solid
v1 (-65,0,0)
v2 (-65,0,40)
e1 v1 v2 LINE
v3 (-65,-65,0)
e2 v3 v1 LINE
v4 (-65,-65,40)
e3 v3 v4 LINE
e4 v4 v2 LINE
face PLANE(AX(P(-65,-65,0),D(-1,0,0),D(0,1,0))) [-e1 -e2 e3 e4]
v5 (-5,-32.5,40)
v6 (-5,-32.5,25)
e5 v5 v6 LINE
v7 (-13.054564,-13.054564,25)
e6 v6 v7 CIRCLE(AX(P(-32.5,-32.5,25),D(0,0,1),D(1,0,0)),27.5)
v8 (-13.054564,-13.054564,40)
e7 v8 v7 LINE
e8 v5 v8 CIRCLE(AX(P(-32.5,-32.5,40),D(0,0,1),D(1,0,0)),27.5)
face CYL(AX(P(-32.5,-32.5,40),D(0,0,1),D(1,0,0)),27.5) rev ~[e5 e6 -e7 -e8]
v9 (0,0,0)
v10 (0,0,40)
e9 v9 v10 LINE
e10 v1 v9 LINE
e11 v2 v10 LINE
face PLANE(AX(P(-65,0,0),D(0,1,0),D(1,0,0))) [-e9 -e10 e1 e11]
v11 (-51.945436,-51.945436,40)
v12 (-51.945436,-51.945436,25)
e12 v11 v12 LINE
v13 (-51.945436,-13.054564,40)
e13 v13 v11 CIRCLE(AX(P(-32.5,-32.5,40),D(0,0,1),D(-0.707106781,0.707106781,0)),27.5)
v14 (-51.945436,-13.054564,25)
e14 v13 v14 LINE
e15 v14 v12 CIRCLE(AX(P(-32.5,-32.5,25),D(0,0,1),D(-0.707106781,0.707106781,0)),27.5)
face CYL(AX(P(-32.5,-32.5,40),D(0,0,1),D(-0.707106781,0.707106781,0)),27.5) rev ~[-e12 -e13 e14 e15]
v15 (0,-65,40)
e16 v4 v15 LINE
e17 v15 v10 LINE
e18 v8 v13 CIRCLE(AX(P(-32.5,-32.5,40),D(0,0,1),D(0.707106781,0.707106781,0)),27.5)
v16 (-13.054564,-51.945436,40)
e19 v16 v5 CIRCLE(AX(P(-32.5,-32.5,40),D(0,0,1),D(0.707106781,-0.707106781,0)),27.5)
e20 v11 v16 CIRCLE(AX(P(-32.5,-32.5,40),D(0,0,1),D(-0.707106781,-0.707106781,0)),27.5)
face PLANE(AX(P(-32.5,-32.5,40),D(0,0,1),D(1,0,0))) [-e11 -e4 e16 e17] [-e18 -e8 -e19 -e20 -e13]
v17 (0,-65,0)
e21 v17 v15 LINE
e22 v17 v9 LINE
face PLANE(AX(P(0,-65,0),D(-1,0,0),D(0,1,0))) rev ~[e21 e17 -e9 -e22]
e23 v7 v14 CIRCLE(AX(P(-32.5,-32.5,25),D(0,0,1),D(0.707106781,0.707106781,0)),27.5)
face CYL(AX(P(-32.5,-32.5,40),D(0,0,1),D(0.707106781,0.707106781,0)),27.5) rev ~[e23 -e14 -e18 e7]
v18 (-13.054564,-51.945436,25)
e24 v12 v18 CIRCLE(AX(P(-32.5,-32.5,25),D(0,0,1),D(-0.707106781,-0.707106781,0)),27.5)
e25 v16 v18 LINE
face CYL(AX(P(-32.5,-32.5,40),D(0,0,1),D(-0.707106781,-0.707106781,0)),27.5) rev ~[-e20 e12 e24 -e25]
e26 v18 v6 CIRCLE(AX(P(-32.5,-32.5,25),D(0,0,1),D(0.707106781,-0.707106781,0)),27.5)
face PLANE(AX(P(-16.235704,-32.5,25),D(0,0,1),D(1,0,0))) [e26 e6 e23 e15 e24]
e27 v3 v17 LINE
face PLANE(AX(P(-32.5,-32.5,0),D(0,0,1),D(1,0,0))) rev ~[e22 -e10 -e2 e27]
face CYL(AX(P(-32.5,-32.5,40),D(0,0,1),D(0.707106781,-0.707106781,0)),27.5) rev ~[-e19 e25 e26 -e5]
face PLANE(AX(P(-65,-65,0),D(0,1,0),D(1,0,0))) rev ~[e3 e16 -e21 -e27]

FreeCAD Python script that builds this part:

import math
import FreeCAD as App
import Part
import Sketcher
Q = App.Units.Quantity


def add_polygon(sketch, points):
    """Adds a closed chain of lines whose ends are joined by coincident constraints."""
    first, n = sketch.GeometryCount, len(points)
    for a, b in zip(points, points[1:] + points[:1]):
        sketch.addGeometry(Part.LineSegment(App.Vector(*a, 0), App.Vector(*b, 0)), False)
    for i in range(n):
        sketch.addConstraint(Sketcher.Constraint("Coincident", first + i, 2, first + (i + 1) % n, 1))

doc = App.newDocument("Part")
body = doc.addObject("PartDesign::Body", "Body")

sketch1 = body.newObject("Sketcher::SketchObject", "Sketch")
sketch1.AttachmentSupport = (doc.getObject("XY_Plane"), [""])
sketch1.MapMode = "FlatFace"
add_polygon(sketch1, [(-65, 0), (-65, -65), (0, -65), (0, 0)])
sketch1.addConstraint(Sketcher.Constraint("Vertical", 0))
sketch1.addConstraint(Sketcher.Constraint("Horizontal", 1))
sketch1.addConstraint(Sketcher.Constraint("Vertical", 2))
sketch1.addConstraint(Sketcher.Constraint("Horizontal", 3))
sketch1.addConstraint(Sketcher.Constraint("Coincident", 2, 2, -1, 1))
sketch1.addConstraint(Sketcher.Constraint("Equal", 3, 0))
sketch1.addConstraint(Sketcher.Constraint("DistanceX", 1, 1, 1, 2, Q("65 mm")))
pad1 = body.newObject("PartDesign::Pad", "Pad")
pad1.Profile = sketch1
pad1.Length = 40

sketch2 = body.newObject("Sketcher::SketchObject", "Sketch001")
sketch2.AttachmentSupport = (doc.getObject("XY_Plane"), [""])
sketch2.MapMode = "FlatFace"
sketch2.AttachmentOffset = App.Placement(App.Vector(0, 0, 40), App.Rotation())
sketch2.addGeometry(Part.ArcOfCircle(Part.Circle(App.Vector(-32.5, -32.5, 0), App.Vector(0, 0, 1), 27.5), math.radians(-45), math.radians(0)), False)
sketch2.addGeometry(Part.ArcOfCircle(Part.Circle(App.Vector(-32.5, -32.5, 0), App.Vector(0, 0, 1), 27.5), math.radians(0), math.radians(45)), False)
sketch2.addGeometry(Part.ArcOfCircle(Part.Circle(App.Vector(-32.5, -32.5, 0), App.Vector(0, 0, 1), 27.5), math.radians(45), math.radians(135)), False)
sketch2.addGeometry(Part.ArcOfCircle(Part.Circle(App.Vector(-32.5, -32.5, 0), App.Vector(0, 0, 1), 27.5), math.radians(135), math.radians(225)), False)
sketch2.addGeometry(Part.ArcOfCircle(Part.Circle(App.Vector(-32.5, -32.5, 0), App.Vector(0, 0, 1), 27.5), math.radians(-135), math.radians(-45)), False)
sketch2.addConstraint(Sketcher.Constraint("Tangent", 0, 2, 1, 1))
sketch2.addConstraint(Sketcher.Constraint("Tangent", 1, 2, 2, 1))
sketch2.addConstraint(Sketcher.Constraint("Tangent", 2, 2, 3, 1))
sketch2.addConstraint(Sketcher.Constraint("Tangent", 3, 2, 4, 1))
sketch2.addConstraint(Sketcher.Constraint("Tangent", 4, 2, 0, 1))
sketch2.addConstraint(Sketcher.Constraint("Coincident", 2, 3, 0, 3))
sketch2.addConstraint(Sketcher.Constraint("Horizontal", 4, 3, 0, 2))
sketch2.addConstraint(Sketcher.Constraint("Horizontal", 1, 2, 2, 2))
sketch2.addConstraint(Sketcher.Constraint("Horizontal", 3, 2, 4, 2))
sketch2.addConstraint(Sketcher.Constraint("Vertical", 2, 2, 3, 2))
sketch2.addConstraint(Sketcher.Constraint("Radius", 0, Q("27.5 mm")))
sketch2.addConstraint(Sketcher.Constraint("DistanceX", 0, 2, -1, 1, Q("5 mm")))
sketch2.addConstraint(Sketcher.Constraint("DistanceY", 0, 3, -1, 1, Q("32.5 mm")))
sketch2.addConstraint(Sketcher.Constraint("DistanceX", 1, 2, -1, 1, Q("13.054564 mm")))
pocket1 = body.newObject("PartDesign::Pocket", "Pocket")
pocket1.Profile = sketch2
pocket1.Length = 15

doc.recompute()
